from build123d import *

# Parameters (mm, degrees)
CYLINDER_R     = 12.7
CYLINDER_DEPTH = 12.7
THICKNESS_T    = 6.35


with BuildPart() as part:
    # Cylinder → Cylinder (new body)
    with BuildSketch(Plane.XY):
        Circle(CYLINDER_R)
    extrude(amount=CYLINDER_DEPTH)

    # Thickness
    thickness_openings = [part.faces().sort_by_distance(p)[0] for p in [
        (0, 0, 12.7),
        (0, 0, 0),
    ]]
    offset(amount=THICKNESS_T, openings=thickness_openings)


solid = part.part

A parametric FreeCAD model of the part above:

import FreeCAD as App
import Part
import Sketcher
from FreeCAD import Vector
Q = App.Units.Quantity


def faces_at(feature, points):
    """Names of the faces that lie closest to the given points."""
    faces = feature.Shape.Faces
    near = lambda p: min(range(len(faces)), key=lambda i: faces[i].distToShape(Part.Vertex(*p))[0])
    return sorted({f"Face{near(p) + 1}" for p in points})

doc = App.newDocument("Part")
params = doc.addObject("Spreadsheet::Sheet", "Params")
for row, (alias, value) in enumerate([
    ("sketch1_diameter", "1 in"),
    ("pad1_length", "0.5 in"),
    ("thickness_wall", "0.25 in"),
], start=1):
    params.set(f"A{row}", alias)
    params.set(f"B{row}", "=" + value)
    params.setAlias(f"B{row}", alias)

body = doc.addObject("PartDesign::Body", "Body")

sketch1 = doc.addObject("Sketcher::SketchObject", "Sketch")
body.addObject(sketch1)
sketch1.AttachmentSupport = (doc.XY_Plane, [""])
sketch1.MapMode = "FlatFace"
sketch1.addGeometry(Part.Circle(Vector(0, 0, 0), Vector(0, 0, 1), 13), False)
sketch1.addConstraint(Sketcher.Constraint("Coincident", 0, 3, -1, 1))
sketch1.addConstraint(Sketcher.Constraint("Diameter", 0, Q("1 in")))
sketch1.setExpression("Constraints[1]", "Params.sketch1_diameter")
pad1 = doc.addObject("PartDesign::Pad", "Pad")
body.addObject(pad1)
pad1.Profile = sketch1
pad1.setExpression("Length", "Params.pad1_length")
doc.recompute()

thickness = doc.addObject("PartDesign::Thickness", "Thickness")
body.addObject(thickness)
thickness.Base = (pad1, faces_at(pad1, [(0, 0, 12.7), (0, 0, 0)]))
thickness.setExpression("Value", "Params.thickness_wall")
thickness.Reversed = False
thickness.Join = "Arc"

doc.recompute()
